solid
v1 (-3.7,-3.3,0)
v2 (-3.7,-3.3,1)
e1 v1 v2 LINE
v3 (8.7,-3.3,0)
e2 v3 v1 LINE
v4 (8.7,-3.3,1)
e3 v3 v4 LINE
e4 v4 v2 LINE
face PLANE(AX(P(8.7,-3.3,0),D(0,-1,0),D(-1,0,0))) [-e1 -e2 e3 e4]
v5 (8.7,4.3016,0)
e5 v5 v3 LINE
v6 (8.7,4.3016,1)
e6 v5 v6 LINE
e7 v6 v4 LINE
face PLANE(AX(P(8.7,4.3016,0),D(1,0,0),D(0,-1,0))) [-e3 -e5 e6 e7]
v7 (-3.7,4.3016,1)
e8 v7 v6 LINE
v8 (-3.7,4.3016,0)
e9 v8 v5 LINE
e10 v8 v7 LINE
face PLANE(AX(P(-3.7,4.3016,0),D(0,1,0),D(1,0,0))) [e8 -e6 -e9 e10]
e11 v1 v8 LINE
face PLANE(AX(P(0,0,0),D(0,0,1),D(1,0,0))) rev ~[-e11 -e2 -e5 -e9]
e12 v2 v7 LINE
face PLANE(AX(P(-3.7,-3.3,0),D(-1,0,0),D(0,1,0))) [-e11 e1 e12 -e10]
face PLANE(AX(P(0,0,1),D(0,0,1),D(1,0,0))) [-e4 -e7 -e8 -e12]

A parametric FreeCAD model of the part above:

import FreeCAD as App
import Part
import Sketcher

V = App.Vector
Q = App.Units.Quantity


def add_polygon(sketch, points):
    """Adds a closed chain of lines whose ends are joined by coincident constraints."""
    first, n = sketch.GeometryCount, len(points)
    for a, b in zip(points, points[1:] + points[:1]):
        sketch.addGeometry(Part.LineSegment(App.Vector(*a, 0), App.Vector(*b, 0)), False)
    for i in range(n):
        sketch.addConstraint(Sketcher.Constraint("Coincident", first + i, 2, first + (i + 1) % n, 1))

doc = App.newDocument("Part")
params = doc.addObject("Spreadsheet::Sheet", "Params")
for row, (alias, value) in enumerate([
    ("sketch1_width", "12.4 mm"),
    ("pad1_length", "1 mm"),
], start=1):
    params.set(f"A{row}", alias)
    params.set(f"B{row}", "=" + value)
    params.setAlias(f"B{row}", alias)

body = doc.addObject("PartDesign::Body", "Body")

# Sketch on XY plane
sketch1 = body.newObject("Sketcher::SketchObject", "Sketch")
sketch1.AttachmentSupport = (doc.getObject("XY_Plane"), [""])
sketch1.MapMode = "FlatFace"
add_polygon(sketch1, [(9, 4), (-4, 4), (-4, -3), (9, -3)])  # lines 0-3
sketch1.addConstraint([
    Sketcher.Constraint("Horizontal", 0),
    Sketcher.Constraint("Vertical", 1),
    Sketcher.Constraint("Horizontal", 2),
    Sketcher.Constraint("Vertical", 3),
    Sketcher.Constraint("DistanceX", 0, 2, 0, 1, Q("12.4 mm")),
    Sketcher.Constraint("DistanceX", 0, 2, -1, 1, Q("3.7 mm")),
    Sketcher.Constraint("DistanceY", 1, 2, -1, 1, Q("3.3 mm")),
    Sketcher.Constraint("DistanceY", 1, 2, 1, 1, Q("7.6016 mm")),
])
sketch1.setExpression("Constraints[8]", "Params.sketch1_width")
pad1 = body.newObject("PartDesign::Pad", "Pad")
pad1.Profile = sketch1
pad1.setExpression("Length", "Params.pad1_length")

doc.recompute()
